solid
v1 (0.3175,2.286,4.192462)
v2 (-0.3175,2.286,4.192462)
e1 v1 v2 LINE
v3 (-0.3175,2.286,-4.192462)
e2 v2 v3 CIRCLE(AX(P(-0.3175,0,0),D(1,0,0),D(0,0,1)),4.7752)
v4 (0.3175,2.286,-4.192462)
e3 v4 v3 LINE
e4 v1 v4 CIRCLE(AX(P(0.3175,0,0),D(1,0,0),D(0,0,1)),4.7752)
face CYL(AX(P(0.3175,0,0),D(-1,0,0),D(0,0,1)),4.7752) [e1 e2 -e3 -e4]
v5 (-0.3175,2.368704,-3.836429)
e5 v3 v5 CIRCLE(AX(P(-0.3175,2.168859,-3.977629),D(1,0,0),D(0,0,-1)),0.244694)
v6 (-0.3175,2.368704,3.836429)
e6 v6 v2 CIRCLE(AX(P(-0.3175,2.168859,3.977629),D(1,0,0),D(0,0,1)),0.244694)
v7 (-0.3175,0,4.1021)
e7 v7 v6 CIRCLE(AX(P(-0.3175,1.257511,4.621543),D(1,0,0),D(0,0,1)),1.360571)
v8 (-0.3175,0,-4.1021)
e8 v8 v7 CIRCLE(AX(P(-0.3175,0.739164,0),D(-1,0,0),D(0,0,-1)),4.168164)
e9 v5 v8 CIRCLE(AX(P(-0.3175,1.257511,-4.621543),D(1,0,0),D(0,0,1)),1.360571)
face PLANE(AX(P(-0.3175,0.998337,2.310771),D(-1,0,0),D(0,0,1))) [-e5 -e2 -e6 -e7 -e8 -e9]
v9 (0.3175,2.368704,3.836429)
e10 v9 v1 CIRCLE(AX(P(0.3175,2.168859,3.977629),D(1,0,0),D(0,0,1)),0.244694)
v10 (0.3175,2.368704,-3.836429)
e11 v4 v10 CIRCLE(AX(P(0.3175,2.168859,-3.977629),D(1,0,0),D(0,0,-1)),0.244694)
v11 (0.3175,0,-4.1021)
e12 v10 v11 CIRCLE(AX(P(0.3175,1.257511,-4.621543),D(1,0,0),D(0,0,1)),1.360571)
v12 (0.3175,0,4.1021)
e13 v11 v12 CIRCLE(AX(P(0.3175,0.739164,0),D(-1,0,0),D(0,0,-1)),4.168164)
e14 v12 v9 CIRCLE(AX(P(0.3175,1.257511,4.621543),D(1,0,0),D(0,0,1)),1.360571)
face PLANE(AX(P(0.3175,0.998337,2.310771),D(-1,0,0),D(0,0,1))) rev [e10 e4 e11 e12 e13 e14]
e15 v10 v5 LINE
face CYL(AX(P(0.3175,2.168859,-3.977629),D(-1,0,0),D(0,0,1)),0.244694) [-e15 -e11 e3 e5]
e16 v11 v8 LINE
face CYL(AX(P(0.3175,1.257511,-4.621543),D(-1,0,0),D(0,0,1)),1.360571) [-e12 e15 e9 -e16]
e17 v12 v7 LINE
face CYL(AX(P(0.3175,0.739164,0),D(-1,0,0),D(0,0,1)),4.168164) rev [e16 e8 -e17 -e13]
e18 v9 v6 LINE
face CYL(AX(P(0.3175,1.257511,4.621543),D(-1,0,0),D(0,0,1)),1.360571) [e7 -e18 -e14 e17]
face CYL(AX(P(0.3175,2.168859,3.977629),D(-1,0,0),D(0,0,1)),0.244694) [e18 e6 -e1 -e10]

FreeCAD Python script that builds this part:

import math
import FreeCAD as App
import Part
import Sketcher

V = App.Vector
Q = App.Units.Quantity

doc = App.newDocument("Part")
body = doc.addObject("PartDesign::Body", "Body")

# Sketch on YZ plane
sketch1 = body.newObject("Sketcher::SketchObject", "Sketch")
sketch1.AttachmentSupport = (doc.getObject("YZ_Plane"), [""])
sketch1.MapMode = "FlatFace"
sketch1.addGeometry(Part.ArcOfCircle(Part.Circle(V(0.739164, 0, 0), V(0, 0, 1), 4.168164), math.radians(100.214601), math.radians(259.785399)), False)
sketch1.addGeometry(Part.ArcOfCircle(Part.Circle(V(1.257511, 4.621543, 0), V(0, 0, 1), 1.360571), math.radians(-157.555832), math.radians(-35.243139)), False)
sketch1.addGeometry(Part.ArcOfCircle(Part.Circle(V(2.168859, 3.977629, 0), V(0, 0, 1), 0.244694), math.radians(-35.243138), math.radians(61.397941)), False)
sketch1.addGeometry(Part.ArcOfCircle(Part.Circle(V(0, 0, 0), V(0, 0, 1), 4.7752), math.radians(61.397941), math.radians(298.602059)), False)
sketch1.addGeometry(Part.ArcOfCircle(Part.Circle(V(2.168859, -3.977629, 0), V(0, 0, 1), 0.244694), math.radians(-61.397941), math.radians(35.243138)), False)
sketch1.addGeometry(Part.ArcOfCircle(Part.Circle(V(1.257511, -4.621543, 0), V(0, 0, 1), 1.360571), math.radians(35.243139), math.radians(157.555832)), False)
sketch1.addConstraint(Sketcher.Constraint("Coincident", 0, 1, 1, 1))
sketch1.addConstraint(Sketcher.Constraint("Tangent", 1, 2, 2, 1))
sketch1.addConstraint(Sketcher.Constraint("Tangent", 2, 2, 3, 1))
sketch1.addConstraint(Sketcher.Constraint("Tangent", 3, 2, 4, 1))
sketch1.addConstraint(Sketcher.Constraint("Tangent", 4, 2, 5, 1))
sketch1.addConstraint(Sketcher.Constraint("Coincident", 5, 2, 0, 2))
sketch1.addConstraint(Sketcher.Constraint("Coincident", 3, 3, -1, 1))
sketch1.addConstraint(Sketcher.Constraint("Equal", 2, 4))
sketch1.addConstraint(Sketcher.Constraint("Equal", 1, 5))
sketch1.addConstraint(Sketcher.Constraint("Symmetric", 0, 1, 5, 2, -1, 1))
sketch1.addConstraint(Sketcher.Constraint("Symmetric", 1, 3, 5, 3, -1))
sketch1.addConstraint(Sketcher.Constraint("Radius", 3, Q("0.188 in")))
sketch1.addConstraint(Sketcher.Constraint("DistanceX", -1, 1, 2, 2, Q("0.09 in")))
sketch1.addConstraint(Sketcher.Constraint("Radius", 1, 1.360571))
sketch1.addConstraint(Sketcher.Constraint("DistanceY", -1, 1, 0, 1, Q("0.1615 in")))
sketch1.addConstraint(Sketcher.Constraint("Radius", 0, 4.168164))
sketch1.addConstraint(Sketcher.Constraint("Radius", 2, 0.244694))
pad1 = body.newObject("PartDesign::Pad", "Pad")
pad1.Profile = sketch1
pad1.Length = Q("0.025 in")
pad1.Midplane = True

doc.recompute()
